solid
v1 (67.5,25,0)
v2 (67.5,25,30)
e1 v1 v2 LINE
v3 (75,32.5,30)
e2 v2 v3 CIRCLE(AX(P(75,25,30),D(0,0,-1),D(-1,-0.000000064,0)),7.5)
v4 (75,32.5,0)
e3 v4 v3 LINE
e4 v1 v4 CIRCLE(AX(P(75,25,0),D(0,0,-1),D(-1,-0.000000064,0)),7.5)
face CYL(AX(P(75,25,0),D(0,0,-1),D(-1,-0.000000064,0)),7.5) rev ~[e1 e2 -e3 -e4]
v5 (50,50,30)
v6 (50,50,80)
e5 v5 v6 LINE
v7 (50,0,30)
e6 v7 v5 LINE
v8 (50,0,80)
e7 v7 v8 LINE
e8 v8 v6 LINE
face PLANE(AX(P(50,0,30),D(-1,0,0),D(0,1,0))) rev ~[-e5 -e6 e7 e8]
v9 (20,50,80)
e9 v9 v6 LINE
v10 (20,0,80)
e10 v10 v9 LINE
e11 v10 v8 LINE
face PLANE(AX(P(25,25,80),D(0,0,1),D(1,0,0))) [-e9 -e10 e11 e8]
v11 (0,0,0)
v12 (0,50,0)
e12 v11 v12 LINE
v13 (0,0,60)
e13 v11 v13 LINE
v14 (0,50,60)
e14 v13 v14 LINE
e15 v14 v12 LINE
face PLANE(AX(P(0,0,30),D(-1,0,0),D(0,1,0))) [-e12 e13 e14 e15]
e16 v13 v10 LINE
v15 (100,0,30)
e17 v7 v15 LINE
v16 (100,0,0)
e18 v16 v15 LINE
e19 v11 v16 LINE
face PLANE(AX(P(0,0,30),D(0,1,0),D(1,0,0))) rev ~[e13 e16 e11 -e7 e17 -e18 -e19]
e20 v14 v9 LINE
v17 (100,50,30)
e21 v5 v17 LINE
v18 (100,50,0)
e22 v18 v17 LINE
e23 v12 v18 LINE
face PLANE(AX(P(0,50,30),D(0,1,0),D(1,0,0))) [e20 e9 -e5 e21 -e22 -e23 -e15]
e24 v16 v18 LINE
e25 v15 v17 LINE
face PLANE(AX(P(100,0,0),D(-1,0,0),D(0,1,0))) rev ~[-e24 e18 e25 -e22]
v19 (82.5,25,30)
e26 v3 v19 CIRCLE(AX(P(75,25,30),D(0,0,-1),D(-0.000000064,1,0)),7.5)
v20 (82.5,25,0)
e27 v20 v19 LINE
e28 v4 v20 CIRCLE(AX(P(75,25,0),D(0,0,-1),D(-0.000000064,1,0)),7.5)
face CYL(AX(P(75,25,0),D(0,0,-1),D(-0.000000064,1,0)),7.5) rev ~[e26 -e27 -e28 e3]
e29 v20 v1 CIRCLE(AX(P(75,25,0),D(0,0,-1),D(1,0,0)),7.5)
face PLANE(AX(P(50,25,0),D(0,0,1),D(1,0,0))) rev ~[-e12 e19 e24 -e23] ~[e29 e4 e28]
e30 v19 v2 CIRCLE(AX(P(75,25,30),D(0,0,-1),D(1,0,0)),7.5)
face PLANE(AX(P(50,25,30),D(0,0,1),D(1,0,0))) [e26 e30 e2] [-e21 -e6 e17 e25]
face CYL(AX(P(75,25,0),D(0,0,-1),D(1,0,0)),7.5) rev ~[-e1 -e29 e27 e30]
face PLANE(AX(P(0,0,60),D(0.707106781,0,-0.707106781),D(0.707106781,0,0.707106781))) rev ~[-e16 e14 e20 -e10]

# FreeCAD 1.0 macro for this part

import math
import FreeCAD as App
import Part
import Sketcher
from FreeCAD import Vector


def add_polygon(sketch, points):
    """Adds a closed chain of lines whose ends are joined by coincident constraints."""
    first, n = sketch.GeometryCount, len(points)
    for a, b in zip(points, points[1:] + points[:1]):
        sketch.addGeometry(Part.LineSegment(App.Vector(*a, 0), App.Vector(*b, 0)), False)
    for i in range(n):
        sketch.addConstraint(Sketcher.Constraint("Coincident", first + i, 2, first + (i + 1) % n, 1))

doc = App.newDocument("Part")
params = doc.addObject("Spreadsheet::Sheet", "Params")
for row, (alias, value) in enumerate([
    ("sketch1_width", "100 mm"),
    ("sketch1_height", "50 mm"),
    ("pad1_length", "30 mm"),
    ("sketch2_width", "50 mm"),
    ("pad2_length", "50 mm"),
    ("sketch3_width", "20 mm"),
    ("sketch4_radius", "7.5 mm"),
], start=1):
    params.set(f"A{row}", alias)
    params.set(f"B{row}", "=" + value)
    params.setAlias(f"B{row}", alias)

body = doc.addObject("PartDesign::Body", "Body")

# Sketch on XY plane
sketch1 = body.newObject("Sketcher::SketchObject", "Sketch")
sketch1.AttachmentSupport = (doc.getObject("XY_Plane"), [""])
sketch1.MapMode = "FlatFace"
add_polygon(sketch1, [(0, 50), (0, 0), (100, 0), (100, 50)])  # lines 0-3
sketch1.addConstraint([
    Sketcher.Constraint("Vertical", 0),
    Sketcher.Constraint("Horizontal", 1),
    Sketcher.Constraint("Vertical", 2),
    Sketcher.Constraint("Horizontal", 3),
    Sketcher.Constraint("Coincident", 0, 2, -1, 1),
    Sketcher.Constraint("DistanceX", 1, 1, 1, 2, 100.0),
    Sketcher.Constraint("DistanceY", 0, 2, 0, 1, 50.0),
])
sketch1.setExpression("Constraints[9]", "Params.sketch1_width")
sketch1.setExpression("Constraints[10]", "Params.sketch1_height")
pad1 = body.newObject("PartDesign::Pad", "Pad")
pad1.Profile = sketch1
pad1.setExpression("Length", "Params.pad1_length")

# Sketch on XY plane
sketch2 = body.newObject("Sketcher::SketchObject", "Sketch001")
sketch2.AttachmentSupport = (doc.getObject("XY_Plane"), [""])
sketch2.MapMode = "FlatFace"
sketch2.AttachmentOffset = App.Placement(Vector(0, 0, 30), App.Rotation())
add_polygon(sketch2, [(0, 50), (0, 0), (50, 0), (50, 50)])  # lines 0-3
sketch2.addConstraint([
    Sketcher.Constraint("Vertical", 0),
    Sketcher.Constraint("Horizontal", 1),
    Sketcher.Constraint("Vertical", 2),
    Sketcher.Constraint("Horizontal", 3),
    Sketcher.Constraint("Coincident", 0, 2, -1, 1),
    Sketcher.Constraint("Equal", 3, 0),
    Sketcher.Constraint("DistanceX", 1, 1, 1, 2, 50.0),
])
sketch2.setExpression("Constraints[10]", "Params.sketch2_width")
pad2 = body.newObject("PartDesign::Pad", "Pad001")
pad2.Profile = sketch2
pad2.setExpression("Length", "Params.pad2_length")

# Sketch on XZ plane
sketch3 = body.newObject("Sketcher::SketchObject", "Sketch002")
sketch3.AttachmentSupport = (doc.getObject("XZ_Plane"), [""])
sketch3.MapMode = "FlatFace"
add_polygon(sketch3, [(20, 80), (0, 80), (0, 60)])  # lines 0-2
sketch3.addConstraint([
    Sketcher.Constraint("Horizontal", 0),
    Sketcher.Constraint("Vertical", 1),
    Sketcher.Constraint("PointOnObject", 0, 2, -2),
    Sketcher.Constraint("Equal", 0, 1),
    Sketcher.Constraint("DistanceX", 0, 2, 0, 1, 20.0),
    Sketcher.Constraint("DistanceY", -1, 1, 0, 2, 80.0),
])
sketch3.setExpression("Constraints[7]", "Params.sketch3_width")
pocket1 = body.newObject("PartDesign::Pocket", "Pocket")
pocket1.Profile = sketch3
pocket1.Type = "ThroughAll"

# Sketch on XY plane
sketch4 = body.newObject("Sketcher::SketchObject", "Sketch003")
sketch4.AttachmentSupport = (doc.getObject("XY_Plane"), [""])
sketch4.MapMode = "FlatFace"
sketch4.addGeometry([
    Part.ArcOfCircle(Part.Circle(Vector(75, 25, 0), Vector(0, 0, 1), 7), math.radians(90), math.radians(180)),
    Part.ArcOfCircle(Part.Circle(Vector(75, 25, 0), Vector(0, 0, 1), 7), math.radians(0), math.radians(90)),
    Part.ArcOfCircle(Part.Circle(Vector(75, 25, 0), Vector(0, 0, 1), 8), math.radians(180), math.radians(360)),
], False)
sketch4.addConstraint([
    Sketcher.Constraint("Tangent", 0, 1, 1, 2),
    Sketcher.Constraint("Tangent", 1, 1, 2, 2),
    Sketcher.Constraint("Tangent", 2, 1, 0, 2),
    Sketcher.Constraint("Horizontal", 2, 3, 1, 1),
    Sketcher.Constraint("Horizontal", 1, 1, 2, 1),
    Sketcher.Constraint("Vertical", 2, 3, 0, 1),
    Sketcher.Constraint("Radius", 0, 7.5),
    Sketcher.Constraint("DistanceX", -1, 1, 0, 3, 75.0),
    Sketcher.Constraint("DistanceY", -1, 1, 0, 3, 25.0),
])
sketch4.setExpression("Constraints[6]", "Params.sketch4_radius")
pocket2 = body.newObject("PartDesign::Pocket", "Pocket001")
pocket2.Profile = sketch4
pocket2.Type = "ThroughAll"
pocket2.Reversed = True

doc.recompute()
